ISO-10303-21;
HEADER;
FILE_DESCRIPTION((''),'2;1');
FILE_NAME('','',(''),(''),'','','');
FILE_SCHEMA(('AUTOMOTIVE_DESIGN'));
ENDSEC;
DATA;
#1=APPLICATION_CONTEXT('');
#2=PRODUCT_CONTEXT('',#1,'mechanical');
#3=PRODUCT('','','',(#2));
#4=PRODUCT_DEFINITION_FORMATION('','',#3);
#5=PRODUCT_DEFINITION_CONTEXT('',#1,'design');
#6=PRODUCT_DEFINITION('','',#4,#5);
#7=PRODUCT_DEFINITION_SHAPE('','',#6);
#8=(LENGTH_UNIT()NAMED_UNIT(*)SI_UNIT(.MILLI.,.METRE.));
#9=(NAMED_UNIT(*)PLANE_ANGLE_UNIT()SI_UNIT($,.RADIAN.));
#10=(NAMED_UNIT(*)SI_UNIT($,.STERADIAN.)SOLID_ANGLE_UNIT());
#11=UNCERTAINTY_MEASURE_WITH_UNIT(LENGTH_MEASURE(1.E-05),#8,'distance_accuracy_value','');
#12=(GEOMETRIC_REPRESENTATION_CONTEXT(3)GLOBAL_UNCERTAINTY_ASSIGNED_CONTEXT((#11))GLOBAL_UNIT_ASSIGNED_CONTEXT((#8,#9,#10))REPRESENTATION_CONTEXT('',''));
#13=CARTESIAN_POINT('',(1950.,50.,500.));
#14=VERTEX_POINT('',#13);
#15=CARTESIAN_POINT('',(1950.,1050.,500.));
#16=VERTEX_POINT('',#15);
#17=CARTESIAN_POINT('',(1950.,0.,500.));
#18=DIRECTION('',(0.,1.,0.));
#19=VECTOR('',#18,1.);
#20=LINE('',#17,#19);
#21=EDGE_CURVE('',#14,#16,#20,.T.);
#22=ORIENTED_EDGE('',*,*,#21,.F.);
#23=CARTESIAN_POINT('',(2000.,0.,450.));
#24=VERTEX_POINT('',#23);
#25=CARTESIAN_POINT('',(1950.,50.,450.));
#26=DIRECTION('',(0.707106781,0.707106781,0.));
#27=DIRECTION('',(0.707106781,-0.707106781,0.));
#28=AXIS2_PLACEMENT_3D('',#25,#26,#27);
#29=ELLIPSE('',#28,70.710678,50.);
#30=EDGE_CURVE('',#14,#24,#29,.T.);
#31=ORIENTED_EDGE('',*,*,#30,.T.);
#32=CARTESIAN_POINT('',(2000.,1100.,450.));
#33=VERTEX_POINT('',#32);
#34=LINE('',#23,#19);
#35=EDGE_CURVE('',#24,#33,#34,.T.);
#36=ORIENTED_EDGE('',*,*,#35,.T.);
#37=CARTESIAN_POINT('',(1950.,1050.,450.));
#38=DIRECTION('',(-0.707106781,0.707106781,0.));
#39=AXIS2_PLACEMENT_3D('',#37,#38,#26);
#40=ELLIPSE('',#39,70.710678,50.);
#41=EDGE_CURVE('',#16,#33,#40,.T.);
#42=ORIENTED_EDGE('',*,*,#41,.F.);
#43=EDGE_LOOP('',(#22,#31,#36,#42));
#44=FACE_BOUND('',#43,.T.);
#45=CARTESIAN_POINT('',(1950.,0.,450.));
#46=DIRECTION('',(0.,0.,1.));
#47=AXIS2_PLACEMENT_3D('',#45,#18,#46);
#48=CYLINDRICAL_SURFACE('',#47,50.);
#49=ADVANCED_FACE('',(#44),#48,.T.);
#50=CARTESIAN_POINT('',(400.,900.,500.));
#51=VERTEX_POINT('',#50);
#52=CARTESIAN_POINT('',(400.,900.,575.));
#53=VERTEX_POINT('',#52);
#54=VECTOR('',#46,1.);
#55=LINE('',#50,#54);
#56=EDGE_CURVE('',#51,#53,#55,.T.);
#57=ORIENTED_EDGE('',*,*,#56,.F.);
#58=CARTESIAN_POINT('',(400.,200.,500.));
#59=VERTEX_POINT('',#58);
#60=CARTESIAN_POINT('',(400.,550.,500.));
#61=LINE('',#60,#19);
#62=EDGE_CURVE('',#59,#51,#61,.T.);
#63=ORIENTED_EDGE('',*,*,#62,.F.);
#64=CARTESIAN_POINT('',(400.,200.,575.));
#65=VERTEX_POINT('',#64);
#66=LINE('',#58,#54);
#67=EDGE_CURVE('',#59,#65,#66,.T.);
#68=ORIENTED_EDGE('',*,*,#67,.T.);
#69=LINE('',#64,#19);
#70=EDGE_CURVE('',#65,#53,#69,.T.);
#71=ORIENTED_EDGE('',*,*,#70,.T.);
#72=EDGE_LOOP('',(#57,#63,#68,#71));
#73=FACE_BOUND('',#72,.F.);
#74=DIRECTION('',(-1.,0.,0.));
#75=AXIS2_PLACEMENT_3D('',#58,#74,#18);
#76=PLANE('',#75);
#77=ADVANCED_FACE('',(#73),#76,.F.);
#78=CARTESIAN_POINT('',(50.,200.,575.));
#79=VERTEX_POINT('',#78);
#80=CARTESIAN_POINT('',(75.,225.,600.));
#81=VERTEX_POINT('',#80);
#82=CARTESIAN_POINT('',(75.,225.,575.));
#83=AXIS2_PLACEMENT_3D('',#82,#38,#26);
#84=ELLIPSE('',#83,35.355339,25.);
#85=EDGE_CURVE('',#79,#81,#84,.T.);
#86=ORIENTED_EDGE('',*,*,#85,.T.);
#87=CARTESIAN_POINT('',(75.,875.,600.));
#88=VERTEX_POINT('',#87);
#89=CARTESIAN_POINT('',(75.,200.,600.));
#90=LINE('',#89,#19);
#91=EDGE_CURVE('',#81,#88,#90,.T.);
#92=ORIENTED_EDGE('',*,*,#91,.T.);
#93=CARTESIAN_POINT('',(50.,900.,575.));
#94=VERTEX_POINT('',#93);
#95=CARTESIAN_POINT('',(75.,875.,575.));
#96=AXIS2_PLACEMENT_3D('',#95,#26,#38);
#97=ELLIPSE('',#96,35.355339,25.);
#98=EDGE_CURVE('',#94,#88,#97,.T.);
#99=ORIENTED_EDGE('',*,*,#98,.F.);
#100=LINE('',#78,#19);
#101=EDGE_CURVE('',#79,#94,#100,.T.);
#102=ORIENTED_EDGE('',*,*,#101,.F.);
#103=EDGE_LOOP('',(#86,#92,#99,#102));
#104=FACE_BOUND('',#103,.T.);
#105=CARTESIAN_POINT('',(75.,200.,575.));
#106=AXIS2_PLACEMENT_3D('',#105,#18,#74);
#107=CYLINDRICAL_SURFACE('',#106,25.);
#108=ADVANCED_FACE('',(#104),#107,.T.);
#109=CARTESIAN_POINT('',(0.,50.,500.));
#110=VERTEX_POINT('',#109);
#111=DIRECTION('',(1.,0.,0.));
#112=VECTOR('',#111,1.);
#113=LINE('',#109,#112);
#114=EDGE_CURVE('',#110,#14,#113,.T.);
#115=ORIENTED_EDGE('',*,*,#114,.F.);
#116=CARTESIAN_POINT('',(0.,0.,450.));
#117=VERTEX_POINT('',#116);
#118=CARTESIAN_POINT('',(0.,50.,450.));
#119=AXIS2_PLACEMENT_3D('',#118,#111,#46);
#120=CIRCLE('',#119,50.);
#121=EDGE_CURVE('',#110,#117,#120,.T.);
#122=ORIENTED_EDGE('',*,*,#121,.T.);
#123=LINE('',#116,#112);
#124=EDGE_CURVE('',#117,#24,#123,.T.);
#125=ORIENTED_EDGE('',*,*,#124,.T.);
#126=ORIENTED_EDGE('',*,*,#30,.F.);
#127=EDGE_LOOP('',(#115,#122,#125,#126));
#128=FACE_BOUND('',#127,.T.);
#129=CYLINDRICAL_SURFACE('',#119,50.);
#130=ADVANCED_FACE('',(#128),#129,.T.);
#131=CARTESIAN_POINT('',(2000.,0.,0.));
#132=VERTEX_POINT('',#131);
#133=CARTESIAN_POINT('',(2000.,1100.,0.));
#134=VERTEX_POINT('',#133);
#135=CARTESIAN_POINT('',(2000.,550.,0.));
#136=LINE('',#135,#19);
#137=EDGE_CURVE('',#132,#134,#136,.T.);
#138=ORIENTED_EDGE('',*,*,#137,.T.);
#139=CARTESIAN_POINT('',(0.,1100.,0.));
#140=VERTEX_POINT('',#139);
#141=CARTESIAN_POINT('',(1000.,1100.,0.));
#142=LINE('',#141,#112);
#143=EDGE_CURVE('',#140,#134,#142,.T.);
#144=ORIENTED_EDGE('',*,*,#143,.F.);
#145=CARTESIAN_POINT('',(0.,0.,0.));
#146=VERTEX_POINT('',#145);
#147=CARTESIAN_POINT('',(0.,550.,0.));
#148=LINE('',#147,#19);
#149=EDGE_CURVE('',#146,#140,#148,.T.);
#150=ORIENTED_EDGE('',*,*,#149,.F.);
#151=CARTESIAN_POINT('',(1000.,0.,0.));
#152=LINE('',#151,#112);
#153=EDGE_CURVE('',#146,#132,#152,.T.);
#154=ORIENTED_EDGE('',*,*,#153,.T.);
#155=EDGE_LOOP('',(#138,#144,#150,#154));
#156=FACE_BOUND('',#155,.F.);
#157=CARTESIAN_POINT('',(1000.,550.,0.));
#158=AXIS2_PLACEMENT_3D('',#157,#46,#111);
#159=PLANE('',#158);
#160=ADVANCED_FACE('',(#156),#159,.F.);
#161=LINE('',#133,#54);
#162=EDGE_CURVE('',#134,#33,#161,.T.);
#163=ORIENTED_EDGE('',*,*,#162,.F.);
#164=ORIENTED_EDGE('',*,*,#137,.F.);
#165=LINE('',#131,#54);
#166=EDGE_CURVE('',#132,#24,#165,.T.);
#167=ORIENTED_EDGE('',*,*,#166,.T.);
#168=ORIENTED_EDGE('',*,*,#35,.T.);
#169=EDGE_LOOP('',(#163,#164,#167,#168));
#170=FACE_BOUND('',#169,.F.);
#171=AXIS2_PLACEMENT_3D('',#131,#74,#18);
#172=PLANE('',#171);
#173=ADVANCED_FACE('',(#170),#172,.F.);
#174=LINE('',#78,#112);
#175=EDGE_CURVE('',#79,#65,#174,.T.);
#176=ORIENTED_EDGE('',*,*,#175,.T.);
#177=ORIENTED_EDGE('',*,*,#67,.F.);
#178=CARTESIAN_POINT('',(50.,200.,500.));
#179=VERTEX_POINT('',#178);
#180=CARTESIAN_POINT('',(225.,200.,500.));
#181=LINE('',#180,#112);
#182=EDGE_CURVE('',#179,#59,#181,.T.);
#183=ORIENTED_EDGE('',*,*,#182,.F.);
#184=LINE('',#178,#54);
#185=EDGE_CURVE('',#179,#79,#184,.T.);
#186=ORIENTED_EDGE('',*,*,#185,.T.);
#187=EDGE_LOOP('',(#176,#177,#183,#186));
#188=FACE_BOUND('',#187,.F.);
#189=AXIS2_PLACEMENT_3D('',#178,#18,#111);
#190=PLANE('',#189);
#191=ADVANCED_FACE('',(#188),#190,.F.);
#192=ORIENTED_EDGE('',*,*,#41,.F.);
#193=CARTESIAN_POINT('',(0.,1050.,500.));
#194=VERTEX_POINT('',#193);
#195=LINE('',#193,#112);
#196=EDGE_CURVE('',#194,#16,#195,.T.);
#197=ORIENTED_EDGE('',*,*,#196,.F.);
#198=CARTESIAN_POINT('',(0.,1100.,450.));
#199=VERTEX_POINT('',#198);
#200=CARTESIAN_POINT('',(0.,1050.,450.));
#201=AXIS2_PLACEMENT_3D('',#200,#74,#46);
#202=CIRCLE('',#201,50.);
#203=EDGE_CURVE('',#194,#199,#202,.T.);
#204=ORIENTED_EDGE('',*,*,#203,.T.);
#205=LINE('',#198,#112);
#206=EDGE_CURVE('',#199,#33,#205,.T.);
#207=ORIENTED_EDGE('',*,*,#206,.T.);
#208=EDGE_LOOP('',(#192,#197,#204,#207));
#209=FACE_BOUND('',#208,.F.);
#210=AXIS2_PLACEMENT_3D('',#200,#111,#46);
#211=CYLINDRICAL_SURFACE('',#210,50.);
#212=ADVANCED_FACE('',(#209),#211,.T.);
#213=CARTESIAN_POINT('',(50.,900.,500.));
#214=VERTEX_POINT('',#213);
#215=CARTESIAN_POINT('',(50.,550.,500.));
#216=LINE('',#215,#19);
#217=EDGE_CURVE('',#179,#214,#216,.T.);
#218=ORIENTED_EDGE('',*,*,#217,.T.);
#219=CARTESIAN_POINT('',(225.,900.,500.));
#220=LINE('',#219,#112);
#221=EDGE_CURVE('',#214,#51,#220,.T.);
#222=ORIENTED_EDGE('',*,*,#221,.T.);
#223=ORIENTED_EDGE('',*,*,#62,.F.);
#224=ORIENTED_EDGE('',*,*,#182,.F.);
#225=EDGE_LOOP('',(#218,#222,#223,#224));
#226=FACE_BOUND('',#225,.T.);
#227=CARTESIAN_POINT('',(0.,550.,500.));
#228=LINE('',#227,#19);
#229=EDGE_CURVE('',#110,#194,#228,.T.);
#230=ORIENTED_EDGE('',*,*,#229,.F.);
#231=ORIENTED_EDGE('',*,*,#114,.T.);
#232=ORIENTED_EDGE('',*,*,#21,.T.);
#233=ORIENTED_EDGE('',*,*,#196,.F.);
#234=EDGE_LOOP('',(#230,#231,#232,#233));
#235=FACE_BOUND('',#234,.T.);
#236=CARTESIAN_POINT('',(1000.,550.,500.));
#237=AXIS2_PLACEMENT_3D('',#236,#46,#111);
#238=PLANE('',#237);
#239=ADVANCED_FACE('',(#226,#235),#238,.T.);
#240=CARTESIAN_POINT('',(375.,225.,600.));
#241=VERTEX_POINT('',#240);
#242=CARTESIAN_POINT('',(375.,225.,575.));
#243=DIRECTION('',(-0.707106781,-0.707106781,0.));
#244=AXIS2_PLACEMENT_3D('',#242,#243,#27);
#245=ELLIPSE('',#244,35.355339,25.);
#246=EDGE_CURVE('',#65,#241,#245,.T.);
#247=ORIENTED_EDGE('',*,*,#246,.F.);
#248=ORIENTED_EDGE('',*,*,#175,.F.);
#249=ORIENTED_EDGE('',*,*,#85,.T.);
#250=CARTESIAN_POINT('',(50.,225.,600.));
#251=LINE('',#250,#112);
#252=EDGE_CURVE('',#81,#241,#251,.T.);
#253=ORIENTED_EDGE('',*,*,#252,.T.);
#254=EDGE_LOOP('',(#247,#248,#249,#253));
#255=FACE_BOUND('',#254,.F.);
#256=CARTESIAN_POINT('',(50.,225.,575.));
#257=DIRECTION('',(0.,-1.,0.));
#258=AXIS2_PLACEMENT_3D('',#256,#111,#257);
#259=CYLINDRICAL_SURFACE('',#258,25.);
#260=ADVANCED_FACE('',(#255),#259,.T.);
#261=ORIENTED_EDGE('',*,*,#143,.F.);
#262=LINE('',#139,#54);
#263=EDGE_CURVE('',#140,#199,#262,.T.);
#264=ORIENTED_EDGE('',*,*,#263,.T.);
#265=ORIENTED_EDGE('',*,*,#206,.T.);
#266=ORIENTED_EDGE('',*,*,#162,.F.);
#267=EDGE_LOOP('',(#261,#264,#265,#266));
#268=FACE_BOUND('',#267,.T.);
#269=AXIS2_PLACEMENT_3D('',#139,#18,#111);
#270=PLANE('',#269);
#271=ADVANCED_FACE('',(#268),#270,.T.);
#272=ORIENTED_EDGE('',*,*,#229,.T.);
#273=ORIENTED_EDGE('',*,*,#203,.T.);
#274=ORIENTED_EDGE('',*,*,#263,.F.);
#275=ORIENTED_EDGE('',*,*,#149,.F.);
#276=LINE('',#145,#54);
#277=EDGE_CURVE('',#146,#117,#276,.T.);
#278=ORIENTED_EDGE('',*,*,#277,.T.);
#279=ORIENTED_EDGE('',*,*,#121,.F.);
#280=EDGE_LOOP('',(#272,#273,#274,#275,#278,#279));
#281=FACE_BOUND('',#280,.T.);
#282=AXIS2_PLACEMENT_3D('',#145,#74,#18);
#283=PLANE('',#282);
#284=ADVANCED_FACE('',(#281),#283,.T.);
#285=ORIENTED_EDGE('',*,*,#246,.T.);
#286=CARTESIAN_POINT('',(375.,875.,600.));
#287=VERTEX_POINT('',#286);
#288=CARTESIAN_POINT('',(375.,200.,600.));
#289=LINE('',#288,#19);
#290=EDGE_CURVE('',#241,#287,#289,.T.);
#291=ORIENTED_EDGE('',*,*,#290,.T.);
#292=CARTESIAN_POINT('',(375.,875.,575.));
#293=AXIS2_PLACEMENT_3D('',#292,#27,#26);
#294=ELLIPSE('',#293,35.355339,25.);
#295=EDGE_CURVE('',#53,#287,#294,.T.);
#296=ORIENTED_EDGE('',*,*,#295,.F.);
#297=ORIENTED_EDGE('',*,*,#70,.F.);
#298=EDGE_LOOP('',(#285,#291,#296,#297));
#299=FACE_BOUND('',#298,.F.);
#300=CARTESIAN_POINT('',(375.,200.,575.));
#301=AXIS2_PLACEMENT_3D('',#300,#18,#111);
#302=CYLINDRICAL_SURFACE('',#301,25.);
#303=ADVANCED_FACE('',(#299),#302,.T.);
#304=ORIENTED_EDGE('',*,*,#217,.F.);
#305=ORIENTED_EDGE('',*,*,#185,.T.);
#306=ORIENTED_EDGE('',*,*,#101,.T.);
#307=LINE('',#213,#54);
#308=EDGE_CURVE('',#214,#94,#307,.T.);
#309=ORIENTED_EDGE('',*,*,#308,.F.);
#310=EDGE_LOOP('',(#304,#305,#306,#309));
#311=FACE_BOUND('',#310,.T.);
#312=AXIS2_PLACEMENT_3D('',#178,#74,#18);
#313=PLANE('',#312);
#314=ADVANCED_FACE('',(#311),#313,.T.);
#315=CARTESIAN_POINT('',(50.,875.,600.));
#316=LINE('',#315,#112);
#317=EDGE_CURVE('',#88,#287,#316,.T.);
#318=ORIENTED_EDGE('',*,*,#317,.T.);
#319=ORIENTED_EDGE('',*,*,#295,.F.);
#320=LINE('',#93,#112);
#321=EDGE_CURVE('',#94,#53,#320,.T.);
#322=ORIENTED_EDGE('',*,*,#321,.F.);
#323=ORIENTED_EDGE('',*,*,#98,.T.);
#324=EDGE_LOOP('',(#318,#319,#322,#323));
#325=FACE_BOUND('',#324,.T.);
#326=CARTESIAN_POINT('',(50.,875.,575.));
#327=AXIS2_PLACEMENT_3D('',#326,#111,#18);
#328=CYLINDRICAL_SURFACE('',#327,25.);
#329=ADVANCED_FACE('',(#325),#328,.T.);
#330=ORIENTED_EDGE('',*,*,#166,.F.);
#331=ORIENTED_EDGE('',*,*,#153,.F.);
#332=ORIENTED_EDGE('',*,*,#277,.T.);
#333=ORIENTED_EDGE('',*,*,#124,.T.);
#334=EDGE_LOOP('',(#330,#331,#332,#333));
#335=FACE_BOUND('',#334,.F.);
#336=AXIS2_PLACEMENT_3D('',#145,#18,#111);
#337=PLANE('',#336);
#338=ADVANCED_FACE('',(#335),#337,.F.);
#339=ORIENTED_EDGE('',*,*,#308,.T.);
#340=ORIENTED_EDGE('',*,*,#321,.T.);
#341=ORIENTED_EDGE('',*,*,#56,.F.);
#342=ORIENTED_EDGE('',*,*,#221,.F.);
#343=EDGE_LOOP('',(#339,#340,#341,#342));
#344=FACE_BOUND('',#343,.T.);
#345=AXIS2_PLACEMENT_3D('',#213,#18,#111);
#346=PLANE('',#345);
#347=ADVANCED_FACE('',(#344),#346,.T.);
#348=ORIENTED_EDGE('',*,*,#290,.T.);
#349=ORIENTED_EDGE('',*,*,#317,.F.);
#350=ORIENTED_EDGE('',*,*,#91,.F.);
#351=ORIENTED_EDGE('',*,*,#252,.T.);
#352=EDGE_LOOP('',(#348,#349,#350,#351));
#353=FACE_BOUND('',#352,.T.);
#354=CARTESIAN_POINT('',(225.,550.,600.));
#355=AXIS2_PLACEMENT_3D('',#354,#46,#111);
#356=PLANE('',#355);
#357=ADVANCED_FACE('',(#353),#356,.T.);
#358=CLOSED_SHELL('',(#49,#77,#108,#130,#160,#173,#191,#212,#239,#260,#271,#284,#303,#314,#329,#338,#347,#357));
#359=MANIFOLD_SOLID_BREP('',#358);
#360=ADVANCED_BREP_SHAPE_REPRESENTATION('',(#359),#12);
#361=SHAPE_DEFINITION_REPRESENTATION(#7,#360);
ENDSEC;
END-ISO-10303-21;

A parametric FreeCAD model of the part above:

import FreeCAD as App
import Part
import Sketcher
Q = App.Units.Quantity


def edges_at(feature, points):
    """Names of the edges that pass closest to the given points."""
    edges = feature.Shape.Edges
    near = lambda p: min(range(len(edges)), key=lambda i: edges[i].distToShape(Part.Vertex(*p))[0])
    return sorted({f"Edge{near(p) + 1}" for p in points})


def add_polygon(sketch, points):
    """Adds a closed chain of lines whose ends are joined by coincident constraints."""
    first, n = sketch.GeometryCount, len(points)
    for a, b in zip(points, points[1:] + points[:1]):
        sketch.addGeometry(Part.LineSegment(App.Vector(*a, 0), App.Vector(*b, 0)), False)
    for i in range(n):
        sketch.addConstraint(Sketcher.Constraint("Coincident", first + i, 2, first + (i + 1) % n, 1))

doc = App.newDocument("Part")
body = doc.addObject("PartDesign::Body", "Body")

sketch1 = body.newObject("Sketcher::SketchObject", "Sketch")
sketch1.AttachmentSupport = (doc.getObject("XY_Plane"), [""])
sketch1.MapMode = "FlatFace"
add_polygon(sketch1, [(0, 1100), (0, 0), (2000, 0), (2000, 1100)])
sketch1.addConstraint([
    Sketcher.Constraint("Vertical", 0),
    Sketcher.Constraint("Horizontal", 1),
    Sketcher.Constraint("Vertical", 2),
    Sketcher.Constraint("Horizontal", 3),
    Sketcher.Constraint("Coincident", 0, 2, -1, 1),
    Sketcher.Constraint("DistanceX", 1, 1, 1, 2, Q("2000 mm")),
    Sketcher.Constraint("DistanceY", 0, 2, 0, 1, Q("1100 mm")),
])
pad1 = body.newObject("PartDesign::Pad", "Pad")
pad1.Profile = sketch1
pad1.Length = 500

sketch2 = body.newObject("Sketcher::SketchObject", "Sketch001")
sketch2.AttachmentSupport = (doc.getObject("XY_Plane"), [""])
sketch2.MapMode = "FlatFace"
sketch2.AttachmentOffset = App.Placement(App.Vector(0, 0, 500), App.Rotation())
add_polygon(sketch2, [(50, 900), (50, 200), (400, 200), (400, 900)])
sketch2.addConstraint([
    Sketcher.Constraint("Vertical", 0),
    Sketcher.Constraint("Horizontal", 1),
    Sketcher.Constraint("Vertical", 2),
    Sketcher.Constraint("Horizontal", 3),
    Sketcher.Constraint("DistanceX", 1, 1, 1, 2, Q("350 mm")),
    Sketcher.Constraint("DistanceY", 0, 2, 0, 1, Q("700 mm")),
    Sketcher.Constraint("DistanceX", -1, 1, 0, 2, Q("50 mm")),
    Sketcher.Constraint("DistanceY", -1, 1, 0, 2, Q("200 mm")),
])
pad2 = body.newObject("PartDesign::Pad", "Pad001")
pad2.Profile = sketch2
pad2.Length = 100
doc.recompute()

fillet = body.newObject("PartDesign::Fillet", "Fillet")
fillet.Base = (pad2, edges_at(pad2, [
    (225, 200, 600),
    (50, 550, 600),
    (400, 550, 600),
    (225, 900, 600),
]))
fillet.Radius = 25
doc.recompute()

fillet2 = body.newObject("PartDesign::Fillet", "Fillet001")
fillet2.Base = (fillet, edges_at(fillet, [(1000, 0, 500), (2000, 550, 500), (1000, 1100, 500)]))
fillet2.Radius = 50

doc.recompute()
